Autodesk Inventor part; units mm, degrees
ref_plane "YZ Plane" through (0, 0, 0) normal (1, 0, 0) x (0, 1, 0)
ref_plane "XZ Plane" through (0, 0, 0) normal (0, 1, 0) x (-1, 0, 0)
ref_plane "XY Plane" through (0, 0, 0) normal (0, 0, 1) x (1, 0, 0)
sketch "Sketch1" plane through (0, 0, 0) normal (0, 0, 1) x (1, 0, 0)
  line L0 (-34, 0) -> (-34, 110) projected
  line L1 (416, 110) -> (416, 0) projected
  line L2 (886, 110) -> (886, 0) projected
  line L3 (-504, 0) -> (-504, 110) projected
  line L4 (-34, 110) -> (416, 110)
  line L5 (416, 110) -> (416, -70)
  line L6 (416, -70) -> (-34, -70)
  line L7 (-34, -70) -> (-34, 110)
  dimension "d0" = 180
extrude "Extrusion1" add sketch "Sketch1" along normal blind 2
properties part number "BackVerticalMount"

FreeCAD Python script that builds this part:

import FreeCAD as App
import Part
import Sketcher
from FreeCAD import Vector
Q = App.Units.Quantity

doc = App.newDocument("Part")
body = doc.addObject("PartDesign::Body", "Body")

sketch1 = doc.addObject("Sketcher::SketchObject", "Sketch")
body.addObject(sketch1)
sketch1.AttachmentSupport = (doc.XY_Plane, [""])
sketch1.MapMode = "FlatFace"
sketch1.addGeometry(Part.LineSegment(Vector(-34, 110, 0), Vector(-34, -70, 0)), False)
sketch1.addGeometry(Part.LineSegment(Vector(-34, -70, 0), Vector(416, -70, 0)), False)
sketch1.addGeometry(Part.LineSegment(Vector(416, -70, 0), Vector(416, 110, 0)), False)
sketch1.addGeometry(Part.LineSegment(Vector(416, 110, 0), Vector(-34, 110, 0)), False)
sketch1.addConstraint(Sketcher.Constraint("Coincident", 0, 2, 1, 1))
sketch1.addConstraint(Sketcher.Constraint("Coincident", 1, 2, 2, 1))
sketch1.addConstraint(Sketcher.Constraint("Coincident", 2, 2, 3, 1))
sketch1.addConstraint(Sketcher.Constraint("Coincident", 3, 2, 0, 1))
sketch1.addConstraint(Sketcher.Constraint("Vertical", 0))
sketch1.addConstraint(Sketcher.Constraint("Horizontal", 1))
sketch1.addConstraint(Sketcher.Constraint("Vertical", 2))
sketch1.addConstraint(Sketcher.Constraint("Horizontal", 3))
sketch1.addConstraint(Sketcher.Constraint("DistanceY", 0, 2, 0, 1, Q("180 mm")))
sketch1.addConstraint(Sketcher.Constraint("DistanceX", 1, 1, 1, 2, Q("450 mm")))
sketch1.addConstraint(Sketcher.Constraint("DistanceX", 0, 2, -1, 1, Q("34 mm")))
sketch1.addConstraint(Sketcher.Constraint("DistanceY", 0, 2, -1, 1, Q("70 mm")))
pad1 = doc.addObject("PartDesign::Pad", "Pad")
body.addObject(pad1)
pad1.Profile = sketch1
pad1.Length = 2

doc.recompute()
